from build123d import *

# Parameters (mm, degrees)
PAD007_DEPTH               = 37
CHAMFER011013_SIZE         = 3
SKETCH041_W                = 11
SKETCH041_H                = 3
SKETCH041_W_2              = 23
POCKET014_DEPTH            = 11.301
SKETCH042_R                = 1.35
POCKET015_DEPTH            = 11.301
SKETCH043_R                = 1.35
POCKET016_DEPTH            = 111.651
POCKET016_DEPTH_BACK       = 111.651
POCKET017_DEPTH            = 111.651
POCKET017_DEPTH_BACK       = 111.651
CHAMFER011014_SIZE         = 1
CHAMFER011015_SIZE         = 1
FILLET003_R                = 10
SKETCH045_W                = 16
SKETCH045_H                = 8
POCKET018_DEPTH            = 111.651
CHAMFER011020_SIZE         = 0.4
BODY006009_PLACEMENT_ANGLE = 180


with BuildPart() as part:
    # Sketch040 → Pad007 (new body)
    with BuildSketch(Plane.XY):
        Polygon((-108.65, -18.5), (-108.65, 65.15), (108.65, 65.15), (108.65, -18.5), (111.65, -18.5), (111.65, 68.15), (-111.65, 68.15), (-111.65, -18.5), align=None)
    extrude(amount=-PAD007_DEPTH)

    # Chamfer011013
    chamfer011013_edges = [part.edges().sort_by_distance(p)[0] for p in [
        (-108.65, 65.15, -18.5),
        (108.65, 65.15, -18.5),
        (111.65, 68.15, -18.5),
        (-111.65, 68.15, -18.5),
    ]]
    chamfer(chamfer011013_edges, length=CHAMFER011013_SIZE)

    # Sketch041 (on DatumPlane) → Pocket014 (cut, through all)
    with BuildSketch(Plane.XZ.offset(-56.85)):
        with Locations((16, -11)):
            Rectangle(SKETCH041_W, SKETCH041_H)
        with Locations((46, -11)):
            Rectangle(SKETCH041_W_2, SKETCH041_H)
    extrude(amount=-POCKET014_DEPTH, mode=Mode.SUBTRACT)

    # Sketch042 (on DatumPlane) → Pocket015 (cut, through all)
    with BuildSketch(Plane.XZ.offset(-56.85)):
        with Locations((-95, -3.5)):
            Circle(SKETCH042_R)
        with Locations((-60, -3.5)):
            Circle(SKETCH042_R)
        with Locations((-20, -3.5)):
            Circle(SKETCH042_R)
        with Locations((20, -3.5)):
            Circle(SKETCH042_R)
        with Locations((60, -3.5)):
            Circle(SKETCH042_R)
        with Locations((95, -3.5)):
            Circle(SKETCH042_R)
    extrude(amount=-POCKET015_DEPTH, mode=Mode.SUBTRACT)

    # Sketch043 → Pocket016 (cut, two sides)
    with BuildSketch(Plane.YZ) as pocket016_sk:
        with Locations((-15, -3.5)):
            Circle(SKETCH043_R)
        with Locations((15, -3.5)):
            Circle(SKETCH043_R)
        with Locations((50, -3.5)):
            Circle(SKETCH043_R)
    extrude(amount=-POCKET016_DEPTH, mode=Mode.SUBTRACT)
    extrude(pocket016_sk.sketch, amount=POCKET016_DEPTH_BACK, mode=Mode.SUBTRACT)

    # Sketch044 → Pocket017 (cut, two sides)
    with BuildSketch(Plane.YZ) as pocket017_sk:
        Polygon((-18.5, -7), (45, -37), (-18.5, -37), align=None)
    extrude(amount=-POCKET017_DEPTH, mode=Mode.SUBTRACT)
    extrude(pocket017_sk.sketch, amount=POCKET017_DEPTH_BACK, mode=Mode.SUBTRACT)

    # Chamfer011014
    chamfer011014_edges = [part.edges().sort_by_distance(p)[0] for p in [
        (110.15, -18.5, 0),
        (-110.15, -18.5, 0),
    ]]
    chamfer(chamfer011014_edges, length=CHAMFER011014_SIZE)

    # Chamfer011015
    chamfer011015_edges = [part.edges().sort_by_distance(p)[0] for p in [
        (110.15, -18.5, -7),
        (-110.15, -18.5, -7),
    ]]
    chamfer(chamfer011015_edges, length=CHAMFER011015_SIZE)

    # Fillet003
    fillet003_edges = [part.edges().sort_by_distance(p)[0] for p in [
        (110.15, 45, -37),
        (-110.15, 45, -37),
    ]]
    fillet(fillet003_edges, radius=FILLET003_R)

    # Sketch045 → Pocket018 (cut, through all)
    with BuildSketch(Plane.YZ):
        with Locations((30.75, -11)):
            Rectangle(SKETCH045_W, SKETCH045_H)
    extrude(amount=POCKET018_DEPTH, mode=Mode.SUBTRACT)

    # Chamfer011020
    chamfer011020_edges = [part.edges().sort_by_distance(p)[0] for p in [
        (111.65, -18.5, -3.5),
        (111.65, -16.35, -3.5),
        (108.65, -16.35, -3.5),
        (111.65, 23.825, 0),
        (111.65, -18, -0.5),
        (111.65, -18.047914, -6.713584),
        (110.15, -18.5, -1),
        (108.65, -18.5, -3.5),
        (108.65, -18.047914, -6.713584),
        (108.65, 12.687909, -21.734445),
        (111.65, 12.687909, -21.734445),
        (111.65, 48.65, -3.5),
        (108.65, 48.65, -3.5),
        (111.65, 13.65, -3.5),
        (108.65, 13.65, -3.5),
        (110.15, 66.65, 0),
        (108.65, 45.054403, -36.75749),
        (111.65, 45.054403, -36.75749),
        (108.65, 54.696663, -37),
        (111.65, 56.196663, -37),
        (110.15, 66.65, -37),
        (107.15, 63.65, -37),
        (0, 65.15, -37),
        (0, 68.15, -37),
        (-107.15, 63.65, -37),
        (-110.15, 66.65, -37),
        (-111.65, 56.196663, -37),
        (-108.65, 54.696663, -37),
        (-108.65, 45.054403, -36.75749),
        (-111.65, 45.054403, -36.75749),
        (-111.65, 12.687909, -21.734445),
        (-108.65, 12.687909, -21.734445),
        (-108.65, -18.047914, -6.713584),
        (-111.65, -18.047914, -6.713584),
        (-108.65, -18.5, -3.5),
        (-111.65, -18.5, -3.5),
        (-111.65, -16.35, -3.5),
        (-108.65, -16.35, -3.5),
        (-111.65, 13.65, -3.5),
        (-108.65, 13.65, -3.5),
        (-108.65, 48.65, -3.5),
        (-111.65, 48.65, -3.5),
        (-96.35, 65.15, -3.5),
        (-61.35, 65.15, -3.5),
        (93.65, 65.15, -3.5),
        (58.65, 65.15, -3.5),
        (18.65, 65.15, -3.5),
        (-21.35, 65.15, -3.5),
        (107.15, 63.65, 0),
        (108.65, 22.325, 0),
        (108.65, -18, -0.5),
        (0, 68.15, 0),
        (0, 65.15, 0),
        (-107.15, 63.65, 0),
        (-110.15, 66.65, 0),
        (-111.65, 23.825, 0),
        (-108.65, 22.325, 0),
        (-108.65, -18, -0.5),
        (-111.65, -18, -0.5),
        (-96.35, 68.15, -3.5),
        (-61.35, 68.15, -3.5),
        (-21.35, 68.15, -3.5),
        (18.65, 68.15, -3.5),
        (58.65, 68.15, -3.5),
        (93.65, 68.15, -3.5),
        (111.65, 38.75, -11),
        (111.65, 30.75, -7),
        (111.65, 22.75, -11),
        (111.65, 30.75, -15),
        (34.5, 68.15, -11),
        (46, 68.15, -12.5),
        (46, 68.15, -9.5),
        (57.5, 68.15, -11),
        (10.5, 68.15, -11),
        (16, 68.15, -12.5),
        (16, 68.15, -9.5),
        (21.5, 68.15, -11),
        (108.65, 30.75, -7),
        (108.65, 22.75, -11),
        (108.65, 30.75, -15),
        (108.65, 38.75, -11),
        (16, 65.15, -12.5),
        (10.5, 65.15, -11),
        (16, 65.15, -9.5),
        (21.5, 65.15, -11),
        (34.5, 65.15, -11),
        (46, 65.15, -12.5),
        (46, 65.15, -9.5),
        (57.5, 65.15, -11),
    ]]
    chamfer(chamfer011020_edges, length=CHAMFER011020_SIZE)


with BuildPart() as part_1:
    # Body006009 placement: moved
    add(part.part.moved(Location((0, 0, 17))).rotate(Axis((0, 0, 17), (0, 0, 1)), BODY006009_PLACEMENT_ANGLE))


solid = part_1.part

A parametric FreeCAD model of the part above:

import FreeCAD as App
import Part
import Sketcher
from FreeCAD import Vector


def edges_at(feature, points):
    """Names of the edges that pass closest to the given points."""
    edges = feature.Shape.Edges
    near = lambda p: min(range(len(edges)), key=lambda i: edges[i].distToShape(Part.Vertex(*p))[0])
    return sorted({f"Edge{near(p) + 1}" for p in points})

doc = App.newDocument("Part")
body = doc.addObject("PartDesign::Body", "Body")

sketch1 = body.newObject("Sketcher::SketchObject", "Sketch")
sketch1.AttachmentSupport = (doc.getObject("XY_Plane"), [""])
sketch1.MapMode = "FlatFace"
sketch1.addGeometry([
    Part.LineSegment(Vector(-108.7, -18.5, 0), Vector(-108.7, 65.2, 0)),
    Part.LineSegment(Vector(-108.7, 65.2, 0), Vector(108.7, 65.2, 0)),
    Part.LineSegment(Vector(108.7, 65.2, 0), Vector(108.7, -18.5, 0)),
    Part.LineSegment(Vector(108.7, -18.5, 0), Vector(111.7, -18.5, 0)),
    Part.LineSegment(Vector(111.7, -18.5, 0), Vector(111.7, 68.2, 0)),
    Part.LineSegment(Vector(111.7, 68.2, 0), Vector(-111.7, 68.2, 0)),
    Part.LineSegment(Vector(-111.7, 68.2, 0), Vector(-111.7, -18.5, 0)),
    Part.LineSegment(Vector(-111.7, -18.5, 0), Vector(-108.7, -18.5, 0)),
], False)
sketch1.addConstraint([
    Sketcher.Constraint("Coincident", 0, 2, 1, 1),
    Sketcher.Constraint("Coincident", 1, 2, 2, 1),
    Sketcher.Constraint("Coincident", 2, 2, 3, 1),
    Sketcher.Constraint("Coincident", 3, 2, 4, 1),
    Sketcher.Constraint("Coincident", 4, 2, 5, 1),
    Sketcher.Constraint("Coincident", 5, 2, 6, 1),
    Sketcher.Constraint("Coincident", 6, 2, 7, 1),
    Sketcher.Constraint("Coincident", 7, 2, 0, 1),
    Sketcher.Constraint("Vertical", 0),
    Sketcher.Constraint("Horizontal", 1),
    Sketcher.Constraint("Vertical", 2),
    Sketcher.Constraint("Horizontal", 3),
    Sketcher.Constraint("Vertical", 4),
    Sketcher.Constraint("Horizontal", 5),
    Sketcher.Constraint("Vertical", 6),
    Sketcher.Constraint("Horizontal", 7),
    Sketcher.Constraint("Symmetric", 3, 2, 6, 2, -2),
    Sketcher.Constraint("Equal", 3, 7),
    Sketcher.Constraint("DistanceX", 3, 1, 3, 2, 3.0),
    Sketcher.Constraint("DistanceX", 1, 1, 1, 2, 217.3),
    Sketcher.Constraint("DistanceY", 1, 2, 4, 2, 3.0),
    Sketcher.Constraint("DistanceY", 0, 1, 0, 2, 83.65),
    Sketcher.Constraint("DistanceY", 2, 2, -1, 1, 18.5),
])
pad1 = body.newObject("PartDesign::Pad", "Pad")
pad1.Profile = sketch1
pad1.Length = 37
pad1.Reversed = True
doc.recompute()

chamfer = body.newObject("PartDesign::Chamfer", "Chamfer")
chamfer.Base = (pad1, edges_at(pad1, [
    (-108.65, 65.15, -18.5),
    (108.65, 65.15, -18.5),
    (111.65, 68.15, -18.5),
    (-111.65, 68.15, -18.5),
]))
chamfer.Size = 3

sketch2 = body.newObject("Sketcher::SketchObject", "Sketch001")
sketch2.AttachmentSupport = (doc.getObject("XZ_Plane"), [""])
sketch2.MapMode = "FlatFace"
sketch2.AttachmentOffset = App.Placement(Vector(0, 0, -56.85), App.Rotation())
sketch2.addGeometry([
    Part.LineSegment(Vector(10.5, -9.5, 0), Vector(10.5, -12.5, 0)),
    Part.LineSegment(Vector(10.5, -12.5, 0), Vector(21.5, -12.5, 0)),
    Part.LineSegment(Vector(21.5, -12.5, 0), Vector(21.5, -9.5, 0)),
    Part.LineSegment(Vector(21.5, -9.5, 0), Vector(10.5, -9.5, 0)),
    Part.LineSegment(Vector(34.5, -9.5, 0), Vector(34.5, -12.5, 0)),
    Part.LineSegment(Vector(34.5, -12.5, 0), Vector(57.5, -12.5, 0)),
    Part.LineSegment(Vector(57.5, -12.5, 0), Vector(57.5, -9.5, 0)),
    Part.LineSegment(Vector(57.5, -9.5, 0), Vector(34.5, -9.5, 0)),
], False)
sketch2.addConstraint([
    Sketcher.Constraint("Coincident", 0, 2, 1, 1),
    Sketcher.Constraint("Coincident", 1, 2, 2, 1),
    Sketcher.Constraint("Coincident", 2, 2, 3, 1),
    Sketcher.Constraint("Coincident", 3, 2, 0, 1),
    Sketcher.Constraint("Coincident", 4, 2, 5, 1),
    Sketcher.Constraint("Coincident", 5, 2, 6, 1),
    Sketcher.Constraint("Coincident", 6, 2, 7, 1),
    Sketcher.Constraint("Coincident", 7, 2, 4, 1),
    Sketcher.Constraint("Vertical", 0),
    Sketcher.Constraint("Horizontal", 1),
    Sketcher.Constraint("Vertical", 2),
    Sketcher.Constraint("Horizontal", 3),
    Sketcher.Constraint("Vertical", 4),
    Sketcher.Constraint("Horizontal", 5),
    Sketcher.Constraint("Vertical", 6),
    Sketcher.Constraint("Horizontal", 7),
    Sketcher.Constraint("Horizontal", 1, 2, 4, 2),
    Sketcher.Constraint("Horizontal", 3, 2, 6, 2),
    Sketcher.Constraint("DistanceX", 1, 1, 1, 2, 11.0),
    Sketcher.Constraint("DistanceX", 5, 1, 5, 2, 23.0),
    Sketcher.Constraint("DistanceY", 0, 2, 0, 1, 3.0),
    Sketcher.Constraint("DistanceX", 1, 2, 4, 2, 13.0),
    Sketcher.Constraint("DistanceX", -1, 1, 0, 2, 10.5),
    Sketcher.Constraint("DistanceY", 0, 2, -1, 1, 12.5),
])
pocket1 = body.newObject("PartDesign::Pocket", "Pocket")
pocket1.Profile = sketch2
pocket1.Type = "ThroughAll"

sketch3 = body.newObject("Sketcher::SketchObject", "Sketch002")
sketch3.AttachmentSupport = (doc.getObject("XZ_Plane"), [""])
sketch3.MapMode = "FlatFace"
sketch3.AttachmentOffset = App.Placement(Vector(0, 0, -56.85), App.Rotation())
sketch3.addGeometry([
    Part.Circle(Vector(-95, -3.5, 0), Vector(0, 0, 1), 1.4),
    Part.Circle(Vector(-60, -3.5, 0), Vector(0, 0, 1), 1.4),
    Part.Circle(Vector(-20, -3.5, 0), Vector(0, 0, 1), 1.4),
    Part.Circle(Vector(20, -3.5, 0), Vector(0, 0, 1), 1.4),
    Part.Circle(Vector(60, -3.5, 0), Vector(0, 0, 1), 1.4),
    Part.Circle(Vector(95, -3.5, 0), Vector(0, 0, 1), 1.4),
], False)
sketch3.addConstraint([
    Sketcher.Constraint("Equal", 0, 1),
    Sketcher.Constraint("Equal", 1, 2),
    Sketcher.Constraint("Equal", 2, 3),
    Sketcher.Constraint("Equal", 3, 4),
    Sketcher.Constraint("Equal", 4, 5),
    Sketcher.Constraint("Symmetric", 2, 3, 3, 3, -2),
    Sketcher.Constraint("Symmetric", 1, 3, 4, 3, -2),
    Sketcher.Constraint("Symmetric", 0, 3, 5, 3, -2),
    Sketcher.Constraint("Horizontal", 0, 3, 1, 3),
    Sketcher.Constraint("Horizontal", 1, 3, 2, 3),
    Sketcher.Constraint("Diameter", 0, 2.7),
    Sketcher.Constraint("DistanceX", 0, 3, -1, 1, 95.0),
    Sketcher.Constraint("DistanceX", 1, 3, -1, 1, 60.0),
    Sketcher.Constraint("DistanceX", 2, 3, -1, 1, 20.0),
    Sketcher.Constraint("DistanceY", 0, 3, -1, 1, 3.5),
])
pocket2 = body.newObject("PartDesign::Pocket", "Pocket001")
pocket2.Profile = sketch3
pocket2.Type = "ThroughAll"

sketch4 = body.newObject("Sketcher::SketchObject", "Sketch003")
sketch4.AttachmentSupport = (doc.getObject("YZ_Plane"), [""])
sketch4.MapMode = "FlatFace"
sketch4.addGeometry([
    Part.Circle(Vector(-15, -3.5, 0), Vector(0, 0, 1), 1.4),
    Part.Circle(Vector(15, -3.5, 0), Vector(0, 0, 1), 1.4),
    Part.Circle(Vector(50, -3.5, 0), Vector(0, 0, 1), 1.4),
], False)
sketch4.addConstraint([
    Sketcher.Constraint("Equal", 0, 1),
    Sketcher.Constraint("Equal", 1, 2),
    Sketcher.Constraint("Symmetric", 0, 3, 1, 3, -2),
    Sketcher.Constraint("Horizontal", 1, 3, 2, 3),
    Sketcher.Constraint("Diameter", 0, 2.7),
    Sketcher.Constraint("DistanceX", 0, 3, -1, 1, 15.0),
    Sketcher.Constraint("DistanceX", -1, 1, 2, 3, 50.0),
    Sketcher.Constraint("DistanceY", 0, 3, -1, 1, 3.5),
])
pocket3 = body.newObject("PartDesign::Pocket", "Pocket002")
pocket3.Profile = sketch4
pocket3.Type = "ThroughAll"
pocket3.Midplane = True

sketch5 = body.newObject("Sketcher::SketchObject", "Sketch004")
sketch5.AttachmentSupport = (doc.getObject("YZ_Plane"), [""])
sketch5.MapMode = "FlatFace"
sketch5.addGeometry([
    Part.LineSegment(Vector(45, -37, 0), Vector(-18, -7, 0)),
    Part.LineSegment(Vector(-18, -7, 0), Vector(-18, -37, 0)),
    Part.LineSegment(Vector(-18, -37, 0), Vector(45, -37, 0)),
], False)
sketch5.addConstraint([
    Sketcher.Constraint("Coincident", 0, 2, 1, 1),
    Sketcher.Constraint("Coincident", 1, 2, 2, 1),
    Sketcher.Constraint("Coincident", 2, 2, 0, 1),
    Sketcher.Constraint("Vertical", 1),
    Sketcher.Constraint("Horizontal", 2),
    Sketcher.Constraint("DistanceY", 1, 2, 1, 1, 30.0),
    Sketcher.Constraint("DistanceX", 2, 1, 2, 2, 63.5),
    Sketcher.Constraint("DistanceY", 0, 2, -1, 1, 7.0),
    Sketcher.Constraint("DistanceX", -1, 1, 2, 2, 45.0),
])
pocket4 = body.newObject("PartDesign::Pocket", "Pocket003")
pocket4.Profile = sketch5
pocket4.Type = "ThroughAll"
pocket4.Midplane = True
doc.recompute()

chamfer2 = body.newObject("PartDesign::Chamfer", "Chamfer001")
chamfer2.Base = (pocket4, edges_at(pocket4, [(110.15, -18.5, 0), (-110.15, -18.5, 0)]))
chamfer2.Size = 1
doc.recompute()

chamfer3 = body.newObject("PartDesign::Chamfer", "Chamfer002")
chamfer3.Base = (chamfer2, edges_at(chamfer2, [(110.15, -18.5, -7), (-110.15, -18.5, -7)]))
chamfer3.Size = 1
doc.recompute()

fillet = body.newObject("PartDesign::Fillet", "Fillet")
fillet.Base = (chamfer3, edges_at(chamfer3, [(110.15, 45, -37), (-110.15, 45, -37)]))
fillet.Radius = 10

sketch6 = body.newObject("Sketcher::SketchObject", "Sketch005")
sketch6.AttachmentSupport = (doc.getObject("YZ_Plane"), [""])
sketch6.MapMode = "FlatFace"
sketch6.addGeometry([
    Part.LineSegment(Vector(23, -7, 0), Vector(23, -15, 0)),
    Part.LineSegment(Vector(23, -15, 0), Vector(39, -15, 0)),
    Part.LineSegment(Vector(39, -15, 0), Vector(39, -7, 0)),
    Part.LineSegment(Vector(39, -7, 0), Vector(23, -7, 0)),
], False)
sketch6.addConstraint([
    Sketcher.Constraint("Coincident", 0, 2, 1, 1),
    Sketcher.Constraint("Coincident", 1, 2, 2, 1),
    Sketcher.Constraint("Coincident", 2, 2, 3, 1),
    Sketcher.Constraint("Coincident", 3, 2, 0, 1),
    Sketcher.Constraint("Vertical", 0),
    Sketcher.Constraint("Horizontal", 1),
    Sketcher.Constraint("Vertical", 2),
    Sketcher.Constraint("Horizontal", 3),
    Sketcher.Constraint("DistanceX", 1, 1, 1, 2, 16.0),
    Sketcher.Constraint("DistanceY", 0, 2, 0, 1, 8.0),
    Sketcher.Constraint("DistanceY", 0, 2, -1, 1, 15.0),
    Sketcher.Constraint("DistanceX", -1, 1, 0, 2, 22.75),
])
pocket5 = body.newObject("PartDesign::Pocket", "Pocket004")
pocket5.Profile = sketch6
pocket5.Type = "ThroughAll"
pocket5.Reversed = True
doc.recompute()

chamfer4 = body.newObject("PartDesign::Chamfer", "Chamfer003")
chamfer4.Base = (pocket5, edges_at(pocket5, [
    (111.65, -18.5, -3.5),
    (111.65, -16.35, -3.5),
    (108.65, -16.35, -3.5),
    (111.65, 23.825, 0),
    (111.65, -18, -0.5),
    (111.65, -18.048, -6.714),
    (110.15, -18.5, -1),
    (108.65, -18.5, -3.5),
    (108.65, -18.048, -6.714),
    (108.65, 12.688, -21.734),
    (111.65, 12.688, -21.734),
    (111.65, 48.65, -3.5),
    (108.65, 48.65, -3.5),
    (111.65, 13.65, -3.5),
    (108.65, 13.65, -3.5),
    (110.15, 66.65, 0),
    (108.65, 45.054, -36.757),
    (111.65, 45.054, -36.757),
    (108.65, 54.697, -37),
    (111.65, 56.197, -37),
    (110.15, 66.65, -37),
    (107.15, 63.65, -37),
    (0, 65.15, -37),
    (0, 68.15, -37),
    (-107.15, 63.65, -37),
    (-110.15, 66.65, -37),
    (-111.65, 56.197, -37),
    (-108.65, 54.697, -37),
    (-108.65, 45.054, -36.757),
    (-111.65, 45.054, -36.757),
    (-111.65, 12.688, -21.734),
    (-108.65, 12.688, -21.734),
    (-108.65, -18.048, -6.714),
    (-111.65, -18.048, -6.714),
    (-108.65, -18.5, -3.5),
    (-111.65, -18.5, -3.5),
    (-111.65, -16.35, -3.5),
    (-108.65, -16.35, -3.5),
    (-111.65, 13.65, -3.5),
    (-108.65, 13.65, -3.5),
    (-108.65, 48.65, -3.5),
    (-111.65, 48.65, -3.5),
    (-96.35, 65.15, -3.5),
    (-61.35, 65.15, -3.5),
    (93.65, 65.15, -3.5),
    (58.65, 65.15, -3.5),
    (18.65, 65.15, -3.5),
    (-21.35, 65.15, -3.5),
    (107.15, 63.65, 0),
    (108.65, 22.325, 0),
    (108.65, -18, -0.5),
    (0, 68.15, 0),
    (0, 65.15, 0),
    (-107.15, 63.65, 0),
    (-110.15, 66.65, 0),
    (-111.65, 23.825, 0),
    (-108.65, 22.325, 0),
    (-108.65, -18, -0.5),
    (-111.65, -18, -0.5),
    (-96.35, 68.15, -3.5),
    (-61.35, 68.15, -3.5),
    (-21.35, 68.15, -3.5),
    (18.65, 68.15, -3.5),
    (58.65, 68.15, -3.5),
    (93.65, 68.15, -3.5),
    (111.65, 38.75, -11),
    (111.65, 30.75, -7),
    (111.65, 22.75, -11),
    (111.65, 30.75, -15),
    (34.5, 68.15, -11),
    (46, 68.15, -12.5),
    (46, 68.15, -9.5),
    (57.5, 68.15, -11),
    (10.5, 68.15, -11),
    (16, 68.15, -12.5),
    (16, 68.15, -9.5),
    (21.5, 68.15, -11),
    (108.65, 30.75, -7),
    (108.65, 22.75, -11),
    (108.65, 30.75, -15),
    (108.65, 38.75, -11),
    (16, 65.15, -12.5),
    (10.5, 65.15, -11),
    (16, 65.15, -9.5),
    (21.5, 65.15, -11),
    (34.5, 65.15, -11),
    (46, 65.15, -12.5),
    (46, 65.15, -9.5),
    (57.5, 65.15, -11),
]))
chamfer4.Size = 0.4
body2 = doc.addObject("PartDesign::Body", "Body001")
doc.recompute()

body.Placement = App.Placement(Vector(0, 0, 17), App.Rotation(Vector(0, 0, 1), 180))
boolean = body2.newObject("PartDesign::Boolean", "Boolean")
boolean.Type = "Fuse"
boolean.addObjects([body])

doc.recompute()
